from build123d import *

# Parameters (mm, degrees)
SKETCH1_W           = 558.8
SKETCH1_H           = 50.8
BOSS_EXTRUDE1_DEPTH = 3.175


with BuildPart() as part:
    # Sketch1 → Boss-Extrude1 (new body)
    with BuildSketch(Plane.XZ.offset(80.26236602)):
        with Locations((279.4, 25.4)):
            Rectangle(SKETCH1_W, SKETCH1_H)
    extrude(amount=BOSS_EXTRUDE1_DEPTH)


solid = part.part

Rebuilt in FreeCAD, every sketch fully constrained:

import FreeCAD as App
import Part
import Sketcher
Q = App.Units.Quantity


def add_polygon(sketch, points):
    """Adds a closed chain of lines whose ends are joined by coincident constraints."""
    first, n = sketch.GeometryCount, len(points)
    for a, b in zip(points, points[1:] + points[:1]):
        sketch.addGeometry(Part.LineSegment(App.Vector(*a, 0), App.Vector(*b, 0)), False)
    for i in range(n):
        sketch.addConstraint(Sketcher.Constraint("Coincident", first + i, 2, first + (i + 1) % n, 1))

doc = App.newDocument("Part")
body = doc.addObject("PartDesign::Body", "Body")

# Sketch on XZ plane
sketch1 = body.newObject("Sketcher::SketchObject", "Sketch")
sketch1.AttachmentSupport = (doc.getObject("XZ_Plane"), [""])
sketch1.MapMode = "FlatFace"
sketch1.AttachmentOffset = App.Placement(App.Vector(0, 0, 80.262366), App.Rotation())
add_polygon(sketch1, [(0, 50.8), (0, 0), (558.8, 0), (558.8, 50.8)])  # lines 0-3
sketch1.addConstraint(Sketcher.Constraint("Vertical", 0))
sketch1.addConstraint(Sketcher.Constraint("Horizontal", 1))
sketch1.addConstraint(Sketcher.Constraint("Vertical", 2))
sketch1.addConstraint(Sketcher.Constraint("Horizontal", 3))
sketch1.addConstraint(Sketcher.Constraint("Coincident", 0, 2, -1, 1))
sketch1.addConstraint(Sketcher.Constraint("DistanceX", 1, 1, 1, 2, Q("22 in")))
sketch1.addConstraint(Sketcher.Constraint("DistanceY", 0, 2, 0, 1, Q("2 in")))
pad1 = body.newObject("PartDesign::Pad", "Pad")
pad1.Profile = sketch1
pad1.Length = Q("0.125 in")

doc.recompute()
